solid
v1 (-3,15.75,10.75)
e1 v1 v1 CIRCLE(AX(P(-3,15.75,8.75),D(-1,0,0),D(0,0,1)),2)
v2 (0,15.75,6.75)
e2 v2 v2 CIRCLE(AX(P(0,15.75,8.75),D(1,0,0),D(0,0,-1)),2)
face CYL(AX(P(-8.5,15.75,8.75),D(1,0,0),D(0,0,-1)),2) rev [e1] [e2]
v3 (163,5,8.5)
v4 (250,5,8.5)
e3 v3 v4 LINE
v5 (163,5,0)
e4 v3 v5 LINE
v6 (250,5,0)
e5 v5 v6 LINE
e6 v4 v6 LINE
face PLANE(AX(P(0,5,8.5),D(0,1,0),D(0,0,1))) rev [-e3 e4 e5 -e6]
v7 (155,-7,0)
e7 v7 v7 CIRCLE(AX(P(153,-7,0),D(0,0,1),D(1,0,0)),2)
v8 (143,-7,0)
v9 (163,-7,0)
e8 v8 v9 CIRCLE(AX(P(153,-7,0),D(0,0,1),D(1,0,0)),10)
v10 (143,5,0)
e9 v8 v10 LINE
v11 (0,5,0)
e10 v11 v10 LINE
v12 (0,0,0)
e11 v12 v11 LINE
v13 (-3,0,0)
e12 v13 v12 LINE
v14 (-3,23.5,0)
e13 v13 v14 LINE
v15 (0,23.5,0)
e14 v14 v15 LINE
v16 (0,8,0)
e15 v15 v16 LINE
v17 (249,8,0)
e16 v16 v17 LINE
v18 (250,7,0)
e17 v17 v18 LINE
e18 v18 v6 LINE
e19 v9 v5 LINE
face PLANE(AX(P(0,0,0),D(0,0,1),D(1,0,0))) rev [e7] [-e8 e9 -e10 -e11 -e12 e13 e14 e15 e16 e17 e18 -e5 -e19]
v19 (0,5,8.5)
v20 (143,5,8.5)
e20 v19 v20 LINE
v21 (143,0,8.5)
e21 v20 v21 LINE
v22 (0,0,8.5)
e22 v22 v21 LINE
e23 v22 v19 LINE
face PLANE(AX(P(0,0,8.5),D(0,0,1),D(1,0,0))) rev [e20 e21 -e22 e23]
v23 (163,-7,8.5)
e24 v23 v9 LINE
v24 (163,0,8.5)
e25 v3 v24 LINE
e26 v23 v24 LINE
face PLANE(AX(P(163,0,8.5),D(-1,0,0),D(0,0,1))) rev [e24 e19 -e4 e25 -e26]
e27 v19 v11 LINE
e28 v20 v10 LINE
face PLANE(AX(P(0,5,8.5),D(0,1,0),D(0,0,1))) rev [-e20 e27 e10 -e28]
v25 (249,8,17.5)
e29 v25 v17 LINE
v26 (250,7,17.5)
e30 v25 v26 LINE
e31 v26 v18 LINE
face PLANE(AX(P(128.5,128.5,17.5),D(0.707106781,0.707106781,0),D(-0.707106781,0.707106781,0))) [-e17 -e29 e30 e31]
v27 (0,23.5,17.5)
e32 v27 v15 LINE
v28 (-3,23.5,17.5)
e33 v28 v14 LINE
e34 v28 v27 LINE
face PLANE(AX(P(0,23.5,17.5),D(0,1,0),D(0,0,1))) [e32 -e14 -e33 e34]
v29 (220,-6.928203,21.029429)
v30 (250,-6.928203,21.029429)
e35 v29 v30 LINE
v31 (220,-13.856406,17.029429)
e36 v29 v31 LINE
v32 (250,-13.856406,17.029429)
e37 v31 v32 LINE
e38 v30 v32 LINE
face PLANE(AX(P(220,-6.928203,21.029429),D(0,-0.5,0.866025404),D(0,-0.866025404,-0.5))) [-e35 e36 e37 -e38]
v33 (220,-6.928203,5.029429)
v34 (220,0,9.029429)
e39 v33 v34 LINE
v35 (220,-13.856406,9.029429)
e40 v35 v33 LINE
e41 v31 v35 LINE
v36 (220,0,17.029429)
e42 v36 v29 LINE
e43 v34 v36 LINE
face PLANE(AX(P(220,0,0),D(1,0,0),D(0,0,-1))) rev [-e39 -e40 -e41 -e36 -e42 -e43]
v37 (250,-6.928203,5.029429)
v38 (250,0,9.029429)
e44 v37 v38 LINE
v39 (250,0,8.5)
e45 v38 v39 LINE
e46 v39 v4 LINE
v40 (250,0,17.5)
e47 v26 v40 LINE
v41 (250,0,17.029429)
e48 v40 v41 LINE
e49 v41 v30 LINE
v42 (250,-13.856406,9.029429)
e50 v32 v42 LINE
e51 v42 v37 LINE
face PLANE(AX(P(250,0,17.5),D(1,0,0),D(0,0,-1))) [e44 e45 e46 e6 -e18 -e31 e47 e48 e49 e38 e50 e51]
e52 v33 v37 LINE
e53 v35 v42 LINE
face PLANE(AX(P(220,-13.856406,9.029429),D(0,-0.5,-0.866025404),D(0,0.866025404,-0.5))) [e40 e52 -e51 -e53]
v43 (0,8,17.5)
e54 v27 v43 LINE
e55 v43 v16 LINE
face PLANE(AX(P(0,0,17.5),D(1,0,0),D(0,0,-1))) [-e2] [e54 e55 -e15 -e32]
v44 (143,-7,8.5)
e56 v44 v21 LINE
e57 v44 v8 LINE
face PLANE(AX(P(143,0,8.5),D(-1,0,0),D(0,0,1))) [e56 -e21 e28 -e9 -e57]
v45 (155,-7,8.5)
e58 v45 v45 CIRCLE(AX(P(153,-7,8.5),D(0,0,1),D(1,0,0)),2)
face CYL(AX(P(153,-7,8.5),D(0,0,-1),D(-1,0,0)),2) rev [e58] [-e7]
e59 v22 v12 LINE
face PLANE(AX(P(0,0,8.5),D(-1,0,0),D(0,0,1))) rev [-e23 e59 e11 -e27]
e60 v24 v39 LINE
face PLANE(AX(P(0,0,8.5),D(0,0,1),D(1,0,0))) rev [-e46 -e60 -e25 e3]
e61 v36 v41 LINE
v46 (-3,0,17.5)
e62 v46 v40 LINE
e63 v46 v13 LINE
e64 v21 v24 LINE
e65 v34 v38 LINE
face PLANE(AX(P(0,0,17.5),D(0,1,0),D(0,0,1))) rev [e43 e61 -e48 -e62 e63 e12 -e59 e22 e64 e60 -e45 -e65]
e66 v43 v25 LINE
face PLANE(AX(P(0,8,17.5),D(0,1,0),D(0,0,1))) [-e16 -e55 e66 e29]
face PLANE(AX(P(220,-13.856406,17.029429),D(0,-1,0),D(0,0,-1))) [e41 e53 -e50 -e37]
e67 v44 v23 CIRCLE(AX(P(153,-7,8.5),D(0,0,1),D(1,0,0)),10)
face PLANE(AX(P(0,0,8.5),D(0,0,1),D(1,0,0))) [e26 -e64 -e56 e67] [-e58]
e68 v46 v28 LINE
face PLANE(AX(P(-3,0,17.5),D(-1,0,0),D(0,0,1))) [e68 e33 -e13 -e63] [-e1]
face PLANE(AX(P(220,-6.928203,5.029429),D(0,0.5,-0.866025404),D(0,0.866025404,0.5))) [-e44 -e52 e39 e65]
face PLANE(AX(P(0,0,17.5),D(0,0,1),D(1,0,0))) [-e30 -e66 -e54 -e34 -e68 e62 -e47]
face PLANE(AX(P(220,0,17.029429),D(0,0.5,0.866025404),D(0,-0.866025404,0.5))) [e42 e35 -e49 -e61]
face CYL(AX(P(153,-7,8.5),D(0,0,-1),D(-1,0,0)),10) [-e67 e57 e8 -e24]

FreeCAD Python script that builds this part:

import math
import FreeCAD as App
import Part
import Sketcher

V = App.Vector
Q = App.Units.Quantity


def add_polygon(sketch, points):
    """Adds a closed chain of lines whose ends are joined by coincident constraints."""
    first, n = sketch.GeometryCount, len(points)
    for a, b in zip(points, points[1:] + points[:1]):
        sketch.addGeometry(Part.LineSegment(App.Vector(*a, 0), App.Vector(*b, 0)), False)
    for i in range(n):
        sketch.addConstraint(Sketcher.Constraint("Coincident", first + i, 2, first + (i + 1) % n, 1))

doc = App.newDocument("Part")
body = doc.addObject("PartDesign::Body", "Body")

sketch1 = body.newObject("Sketcher::SketchObject", "Sketch")
sketch1.AttachmentSupport = (doc.getObject("XY_Plane"), [""])
sketch1.MapMode = "FlatFace"
add_polygon(sketch1, [(250, 0), (250, 7), (249, 8), (0, 8), (0, 23.5), (-3, 23.5), (-3, 0)])
sketch1.addConstraint([
    Sketcher.Constraint("Vertical", 0),
    Sketcher.Constraint("Horizontal", 2),
    Sketcher.Constraint("Vertical", 3),
    Sketcher.Constraint("Horizontal", 4),
    Sketcher.Constraint("Vertical", 5),
    Sketcher.Constraint("Horizontal", 6),
    Sketcher.Constraint("PointOnObject", 2, 2, -2),
    Sketcher.Constraint("PointOnObject", 5, 2, -1),
    Sketcher.Constraint("DistanceX", 2, 2, 2, 1, Q("249 mm")),
    Sketcher.Constraint("DistanceX", 4, 2, 4, 1, Q("3 mm")),
    Sketcher.Constraint("DistanceX", 6, 1, 6, 2, Q("253 mm")),
    Sketcher.Constraint("DistanceY", 0, 1, 0, 2, Q("7 mm")),
    Sketcher.Constraint("Angle", 1, Q("135 deg")),
    Sketcher.Constraint("DistanceY", 3, 1, 3, 2, Q("15.5 mm")),
])
pad1 = body.newObject("PartDesign::Pad", "Pad")
pad1.Profile = sketch1
pad1.Length = 17.5

sketch2 = body.newObject("Sketcher::SketchObject", "Sketch001")
sketch2.AttachmentSupport = (doc.getObject("XY_Plane"), [""])
sketch2.MapMode = "FlatFace"
add_polygon(sketch2, [(0, 5), (0, 0), (250, 0), (250, 5)])
sketch2.addConstraint([
    Sketcher.Constraint("Vertical", 0),
    Sketcher.Constraint("Horizontal", 1),
    Sketcher.Constraint("Vertical", 2),
    Sketcher.Constraint("Horizontal", 3),
    Sketcher.Constraint("Coincident", 0, 2, -1, 1),
    Sketcher.Constraint("DistanceX", 1, 1, 1, 2, Q("250 mm")),
    Sketcher.Constraint("DistanceY", 0, 2, 0, 1, Q("5 mm")),
])
pocket1 = body.newObject("PartDesign::Pocket", "Pocket")
pocket1.Profile = sketch2
pocket1.Length = 8.5
pocket1.Reversed = True

sketch3 = body.newObject("Sketcher::SketchObject", "Sketch002")
sketch3.AttachmentSupport = (doc.getObject("YZ_Plane"), [""])
sketch3.MapMode = "FlatFace"
sketch3.addGeometry(Part.Circle(V(15.8, 8.8, 0), V(0, 0, 1), 2), False)
sketch3.addConstraint([
    Sketcher.Constraint("Diameter", 0, Q("4 mm")),
    Sketcher.Constraint("DistanceX", -1, 1, 0, 3, Q("15.75 mm")),
    Sketcher.Constraint("DistanceY", -1, 1, 0, 3, Q("8.75 mm")),
])
pocket2 = body.newObject("PartDesign::Pocket", "Pocket001")
pocket2.Profile = sketch3
pocket2.Length = 8.5

sketch4 = body.newObject("Sketcher::SketchObject", "Sketch003")
sketch4.AttachmentSupport = (doc.getObject("XY_Plane"), [""])
sketch4.MapMode = "FlatFace"
sketch4.addGeometry([
    Part.LineSegment(V(163, 5, 0), V(143, 5, 0)),
    Part.LineSegment(V(143, 5, 0), V(143, -7, 0)),
    Part.ArcOfCircle(Part.Circle(V(153, -7, 0), V(0, 0, 1), 10), math.radians(180), math.radians(360)),
    Part.LineSegment(V(163, -7, 0), V(163, 5, 0)),
    Part.Circle(V(153, -7, 0), V(0, 0, 1), 2),
], False)
sketch4.addConstraint([
    Sketcher.Constraint("Coincident", 0, 2, 1, 1),
    Sketcher.Constraint("Tangent", 1, 2, 2, 1),
    Sketcher.Constraint("Tangent", 2, 2, 3, 1),
    Sketcher.Constraint("Coincident", 3, 2, 0, 1),
    Sketcher.Constraint("Horizontal", 0),
    Sketcher.Constraint("Vertical", 1),
    Sketcher.Constraint("Vertical", 3),
    Sketcher.Constraint("Coincident", 4, 3, 2, 3),
    Sketcher.Constraint("Diameter", 4, Q("4 mm")),
    Sketcher.Constraint("Radius", 2, Q("10 mm")),
    Sketcher.Constraint("DistanceY", 1, 2, 1, 1, Q("12 mm")),
    Sketcher.Constraint("DistanceX", -1, 1, 2, 3, Q("153 mm")),
    Sketcher.Constraint("DistanceY", 2, 3, -1, 1, Q("7 mm")),
])
pad2 = body.newObject("PartDesign::Pad", "Pad001")
pad2.Profile = sketch4
pad2.Length = 8.5

sketch5 = body.newObject("Sketcher::SketchObject", "Sketch004")
sketch5.AttachmentSupport = (doc.getObject("YZ_Plane"), [""])
sketch5.MapMode = "FlatFace"
sketch5.AttachmentOffset = App.Placement(V(0, 0, 250), App.Rotation())
add_polygon(sketch5, [(-7, 5), (0, 9), (0, 17), (-7, 21), (-14, 17), (-14, 9)])
sketch5.addConstraint([
    Sketcher.Constraint("Vertical", 1),
    Sketcher.Constraint("Vertical", 4),
    Sketcher.Constraint("PointOnObject", 0, 2, -2),
    Sketcher.Constraint("Parallel", 0, 3),
    Sketcher.Constraint("Parallel", 2, 5),
    Sketcher.Constraint("Horizontal", 1, 2, 3, 2),
    Sketcher.Constraint("Horizontal", 0, 2, 4, 2),
    Sketcher.Constraint("Vertical", 2, 2, 5, 2),
    Sketcher.Constraint("DistanceY", 1, 1, 1, 2, Q("8 mm")),
    Sketcher.Constraint("Angle", 0, Q("30 deg")),
    Sketcher.Constraint("Distance", 0, Q("8 mm")),
    Sketcher.Constraint("DistanceY", -1, 1, 0, 2, Q("9.029429 mm")),
])
pad3 = body.newObject("PartDesign::Pad", "Pad002")
pad3.Profile = sketch5
pad3.Length = 30
pad3.Reversed = True

doc.recompute()
